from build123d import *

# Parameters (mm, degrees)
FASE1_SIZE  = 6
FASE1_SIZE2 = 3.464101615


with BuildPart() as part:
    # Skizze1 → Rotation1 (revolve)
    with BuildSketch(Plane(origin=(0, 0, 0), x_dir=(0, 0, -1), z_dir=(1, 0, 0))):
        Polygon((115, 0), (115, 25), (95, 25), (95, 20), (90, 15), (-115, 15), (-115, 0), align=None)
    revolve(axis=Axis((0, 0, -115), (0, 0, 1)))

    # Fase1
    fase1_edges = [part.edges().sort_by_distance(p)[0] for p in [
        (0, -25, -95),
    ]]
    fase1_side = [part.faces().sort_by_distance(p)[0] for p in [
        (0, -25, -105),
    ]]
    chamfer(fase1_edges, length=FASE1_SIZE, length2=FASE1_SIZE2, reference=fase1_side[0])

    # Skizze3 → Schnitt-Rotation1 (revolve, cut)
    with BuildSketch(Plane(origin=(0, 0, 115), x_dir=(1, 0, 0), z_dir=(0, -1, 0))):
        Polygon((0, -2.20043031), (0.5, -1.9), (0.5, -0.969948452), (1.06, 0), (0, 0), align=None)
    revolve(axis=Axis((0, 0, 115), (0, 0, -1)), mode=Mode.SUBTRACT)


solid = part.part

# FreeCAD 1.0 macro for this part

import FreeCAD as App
import Part
import Sketcher

V = App.Vector
Q = App.Units.Quantity


def edges_at(feature, points):
    """Names of the edges that pass closest to the given points."""
    edges = feature.Shape.Edges
    near = lambda p: min(range(len(edges)), key=lambda i: edges[i].distToShape(Part.Vertex(*p))[0])
    return sorted({f"Edge{near(p) + 1}" for p in points})


def add_polygon(sketch, points):
    """Adds a closed chain of lines whose ends are joined by coincident constraints."""
    first, n = sketch.GeometryCount, len(points)
    for a, b in zip(points, points[1:] + points[:1]):
        sketch.addGeometry(Part.LineSegment(App.Vector(*a, 0), App.Vector(*b, 0)), False)
    for i in range(n):
        sketch.addConstraint(Sketcher.Constraint("Coincident", first + i, 2, first + (i + 1) % n, 1))

doc = App.newDocument("Part")
body = doc.addObject("PartDesign::Body", "Body")

# Sketch on YZ plane
sketch1 = doc.addObject("Sketcher::SketchObject", "Sketch")
body.addObject(sketch1)
sketch1.AttachmentSupport = (doc.YZ_Plane, [""])
sketch1.MapMode = "FlatFace"
add_polygon(sketch1, [(0, -115), (25, -115), (25, -95), (20, -95), (15, -90), (15, 115), (0, 115)])  # lines 0-6
sketch1.addConstraint(Sketcher.Constraint("Horizontal", 0))
sketch1.addConstraint(Sketcher.Constraint("Vertical", 1))
sketch1.addConstraint(Sketcher.Constraint("Horizontal", 2))
sketch1.addConstraint(Sketcher.Constraint("Vertical", 4))
sketch1.addConstraint(Sketcher.Constraint("Horizontal", 5))
sketch1.addConstraint(Sketcher.Constraint("Vertical", 6))
sketch1.addConstraint(Sketcher.Constraint("Symmetric", 5, 2, 6, 2, -1, 1))
sketch1.addConstraint(Sketcher.Constraint("DistanceX", 0, 1, 0, 2, 25.0))
sketch1.addConstraint(Sketcher.Constraint("DistanceX", 2, 2, 2, 1, 5.0))
sketch1.addConstraint(Sketcher.Constraint("DistanceX", 5, 2, 5, 1, 15.0))
sketch1.addConstraint(Sketcher.Constraint("DistanceY", 1, 1, 1, 2, 20.0))
sketch1.addConstraint(Sketcher.Constraint("DistanceY", 4, 1, 4, 2, 205.0))
sketch1.addConstraint(Sketcher.Constraint("DistanceY", 6, 2, 6, 1, 230.0))
revolution = doc.addObject("PartDesign::Revolution", "Revolution")
body.addObject(revolution)
revolution.Profile = sketch1
revolution.ReferenceAxis = (sketch1, ["V_Axis"])
revolution.Angle = 360
doc.recompute()

chamfer = doc.addObject("PartDesign::Chamfer", "Chamfer")
body.addObject(chamfer)
chamfer.Base = (revolution, edges_at(revolution, [(0, -25, -95)]))
chamfer.ChamferType = "Two distances"
chamfer.Size = 6
chamfer.Size2 = 3.464102

# Sketch on XZ plane
sketch2 = doc.addObject("Sketcher::SketchObject", "Sketch001")
body.addObject(sketch2)
sketch2.AttachmentSupport = (doc.XZ_Plane, [""])
sketch2.MapMode = "FlatFace"
add_polygon(sketch2, [(0, 112.79957), (0.5, 113.1), (0.5, 114.030052), (1.06, 115), (0, 115)])  # lines 0-4
sketch2.addConstraint(Sketcher.Constraint("Vertical", 1))
sketch2.addConstraint(Sketcher.Constraint("Horizontal", 3))
sketch2.addConstraint(Sketcher.Constraint("Vertical", 4))
sketch2.addConstraint(Sketcher.Constraint("PointOnObject", 3, 2, -2))
sketch2.addConstraint(Sketcher.Constraint("Angle", 0, Q("31 deg")))
sketch2.addConstraint(Sketcher.Constraint("Angle", 2, Q("60 deg")))
sketch2.addConstraint(Sketcher.Constraint("DistanceY", -1, 1, 2, 2, 115.0))
sketch2.addConstraint(Sketcher.Constraint("DistanceX", 3, 2, 3, 1, 1.06))
sketch2.addConstraint(Sketcher.Constraint("DistanceX", -1, 1, 0, 2, 0.5))
sketch2.addConstraint(Sketcher.Constraint("DistanceY", -1, 1, 0, 2, 113.1))
groove = doc.addObject("PartDesign::Groove", "Groove")
body.addObject(groove)
groove.Profile = sketch2
groove.ReferenceAxis = (sketch2, ["V_Axis"])
groove.Angle = 360

doc.recompute()
